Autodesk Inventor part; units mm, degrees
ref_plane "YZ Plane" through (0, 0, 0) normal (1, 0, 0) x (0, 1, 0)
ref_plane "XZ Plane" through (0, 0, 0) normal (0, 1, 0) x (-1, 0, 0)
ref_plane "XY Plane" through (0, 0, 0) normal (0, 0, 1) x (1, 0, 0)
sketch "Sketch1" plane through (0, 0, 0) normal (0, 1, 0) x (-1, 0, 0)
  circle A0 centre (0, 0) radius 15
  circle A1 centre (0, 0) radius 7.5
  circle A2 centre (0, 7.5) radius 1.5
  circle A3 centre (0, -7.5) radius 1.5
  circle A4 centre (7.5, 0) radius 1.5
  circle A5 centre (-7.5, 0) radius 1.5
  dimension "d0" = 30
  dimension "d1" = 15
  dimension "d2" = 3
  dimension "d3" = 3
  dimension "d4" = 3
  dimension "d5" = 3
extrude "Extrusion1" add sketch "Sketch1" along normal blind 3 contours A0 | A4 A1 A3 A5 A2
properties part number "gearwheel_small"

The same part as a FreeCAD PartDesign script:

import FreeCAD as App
import Part
import Sketcher
Q = App.Units.Quantity

doc = App.newDocument("Part")
body = doc.addObject("PartDesign::Body", "Body")

# Sketch on XZ plane
sketch1 = body.newObject("Sketcher::SketchObject", "Sketch")
sketch1.AttachmentSupport = (doc.getObject("XZ_Plane"), [""])
sketch1.MapMode = "FlatFace"
sketch1.addGeometry([
    Part.Circle(App.Vector(0, 0, 0), App.Vector(0, 0, 1), 15),  # 0
    Part.Circle(App.Vector(0, 7.5, 0), App.Vector(0, 0, 1), 1.5),  # 1
    Part.Circle(App.Vector(7.5, 0, 0), App.Vector(0, 0, 1), 1.5),  # 2
    Part.Circle(App.Vector(0, -7.5, 0), App.Vector(0, 0, 1), 1.5),  # 3
    Part.Circle(App.Vector(-7.5, 0, 0), App.Vector(0, 0, 1), 1.5),  # 4
], False)
sketch1.addConstraint([
    Sketcher.Constraint("Coincident", 0, 3, -1, 1),
    Sketcher.Constraint("Equal", 1, 2),
    Sketcher.Constraint("Equal", 2, 3),
    Sketcher.Constraint("Equal", 3, 4),
    Sketcher.Constraint("Symmetric", 1, 3, 3, 3, -1, 1),
    Sketcher.Constraint("Symmetric", 2, 3, 4, 3, -1, 1),
    Sketcher.Constraint("PointOnObject", 1, 3, -2),
    Sketcher.Constraint("PointOnObject", 2, 3, -1),
    Sketcher.Constraint("Diameter", 0, Q("30 mm")),
    Sketcher.Constraint("Diameter", 1, Q("3 mm")),
    Sketcher.Constraint("DistanceY", 3, 3, 1, 3, Q("15 mm")),
    Sketcher.Constraint("DistanceX", 4, 3, 2, 3, Q("15 mm")),
])
pad1 = body.newObject("PartDesign::Pad", "Pad")
pad1.Profile = sketch1
pad1.Length = 3
pad1.Reversed = True

doc.recompute()
